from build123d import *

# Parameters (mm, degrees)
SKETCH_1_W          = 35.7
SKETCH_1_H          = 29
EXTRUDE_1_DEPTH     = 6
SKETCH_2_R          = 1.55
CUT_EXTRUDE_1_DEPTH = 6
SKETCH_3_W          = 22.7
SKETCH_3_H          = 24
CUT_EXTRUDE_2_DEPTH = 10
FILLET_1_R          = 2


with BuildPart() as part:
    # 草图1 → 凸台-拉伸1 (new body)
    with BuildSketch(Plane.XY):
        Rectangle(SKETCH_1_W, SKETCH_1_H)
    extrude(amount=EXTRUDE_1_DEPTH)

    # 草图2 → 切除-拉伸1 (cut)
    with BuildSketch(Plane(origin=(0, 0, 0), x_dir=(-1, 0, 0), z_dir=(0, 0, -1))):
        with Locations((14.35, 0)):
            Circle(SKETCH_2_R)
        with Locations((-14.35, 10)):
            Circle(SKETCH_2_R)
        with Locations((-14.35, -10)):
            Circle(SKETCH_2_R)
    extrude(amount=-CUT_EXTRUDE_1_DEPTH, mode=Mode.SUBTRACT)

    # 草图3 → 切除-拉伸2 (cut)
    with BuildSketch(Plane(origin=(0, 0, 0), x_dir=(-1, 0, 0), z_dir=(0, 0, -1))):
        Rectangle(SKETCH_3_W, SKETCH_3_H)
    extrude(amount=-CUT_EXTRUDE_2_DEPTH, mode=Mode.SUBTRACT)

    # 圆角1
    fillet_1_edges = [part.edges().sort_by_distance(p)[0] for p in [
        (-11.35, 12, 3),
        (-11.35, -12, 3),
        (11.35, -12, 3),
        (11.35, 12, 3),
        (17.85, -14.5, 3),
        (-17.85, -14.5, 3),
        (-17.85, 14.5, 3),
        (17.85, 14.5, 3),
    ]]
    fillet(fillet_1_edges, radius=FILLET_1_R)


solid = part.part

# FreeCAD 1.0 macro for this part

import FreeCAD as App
import Part
import Sketcher
from FreeCAD import Vector


def edges_at(feature, points):
    """Names of the edges that pass closest to the given points."""
    edges = feature.Shape.Edges
    near = lambda p: min(range(len(edges)), key=lambda i: edges[i].distToShape(Part.Vertex(*p))[0])
    return sorted({f"Edge{near(p) + 1}" for p in points})

doc = App.newDocument("Part")
params = doc.addObject("Spreadsheet::Sheet", "Params")
for row, (alias, value) in enumerate([
    ("sketch1_height", "29 mm"),
    ("sketch1_width", "35.7 mm"),
    ("pad1_length", "6 mm"),
    ("sketch2_diameter", "3.1 mm"),
    ("pocket1_length", "6 mm"),
    ("sketch3_height", "24 mm"),
    ("sketch3_width", "22.7 mm"),
    ("pocket2_length", "10 mm"),
    ("fillet_radius", "2 mm"),
], start=1):
    params.set(f"A{row}", alias)
    params.set(f"B{row}", "=" + value)
    params.setAlias(f"B{row}", alias)

body = doc.addObject("PartDesign::Body", "Body")

# Sketch on XY plane
sketch1 = body.newObject("Sketcher::SketchObject", "Sketch")
sketch1.AttachmentSupport = (doc.getObject("XY_Plane"), [""])
sketch1.MapMode = "FlatFace"
sketch1.addGeometry([
    Part.LineSegment(Vector(-18, 14, 0), Vector(-18, -14, 0)),
    Part.LineSegment(Vector(-18, -14, 0), Vector(18, -14, 0)),
    Part.LineSegment(Vector(18, -14, 0), Vector(18, 14, 0)),
    Part.LineSegment(Vector(18, 14, 0), Vector(-18, 14, 0)),
], False)
sketch1.addConstraint([
    Sketcher.Constraint("Coincident", 0, 2, 1, 1),
    Sketcher.Constraint("Coincident", 1, 2, 2, 1),
    Sketcher.Constraint("Coincident", 2, 2, 3, 1),
    Sketcher.Constraint("Coincident", 3, 2, 0, 1),
    Sketcher.Constraint("Vertical", 0),
    Sketcher.Constraint("Horizontal", 1),
    Sketcher.Constraint("Vertical", 2),
    Sketcher.Constraint("Horizontal", 3),
    Sketcher.Constraint("Symmetric", 0, 2, 2, 2, -1, 1),
    Sketcher.Constraint("DistanceY", 0, 2, 0, 1, 29.0),
    Sketcher.Constraint("DistanceX", 1, 1, 1, 2, 35.7),
])
sketch1.setExpression("Constraints[9]", "Params.sketch1_height")
sketch1.setExpression("Constraints[10]", "Params.sketch1_width")
pad1 = body.newObject("PartDesign::Pad", "Pad")
pad1.Profile = sketch1
pad1.setExpression("Length", "Params.pad1_length")

# Sketch on XY plane
sketch2 = body.newObject("Sketcher::SketchObject", "Sketch001")
sketch2.AttachmentSupport = (doc.getObject("XY_Plane"), [""])
sketch2.MapMode = "FlatFace"
sketch2.addGeometry([
    Part.Circle(Vector(-14.3, 0, 0), Vector(0, 0, 1), 1.6),
    Part.Circle(Vector(14.3, 10, 0), Vector(0, 0, 1), 1.6),
    Part.Circle(Vector(14.3, -10, 0), Vector(0, 0, 1), 1.6),
], False)
sketch2.addConstraint([
    Sketcher.Constraint("Equal", 0, 1),
    Sketcher.Constraint("Equal", 1, 2),
    Sketcher.Constraint("Symmetric", 1, 3, 2, 3, -1),
    Sketcher.Constraint("PointOnObject", 0, 3, -1),
    Sketcher.Constraint("Diameter", 0, 3.1),
    Sketcher.Constraint("DistanceY", -1, 1, 1, 3, 10.0),
    Sketcher.Constraint("DistanceX", 0, 3, 1, 3, 28.7),
    Sketcher.Constraint("DistanceX", 0, 3, -1, 1, 14.35),
])
sketch2.setExpression("Constraints[4]", "Params.sketch2_diameter")
pocket1 = body.newObject("PartDesign::Pocket", "Pocket")
pocket1.Profile = sketch2
pocket1.setExpression("Length", "Params.pocket1_length")
pocket1.Reversed = True

# Sketch on XY plane
sketch3 = body.newObject("Sketcher::SketchObject", "Sketch002")
sketch3.AttachmentSupport = (doc.getObject("XY_Plane"), [""])
sketch3.MapMode = "FlatFace"
sketch3.addGeometry([
    Part.LineSegment(Vector(11, 12, 0), Vector(11, -12, 0)),
    Part.LineSegment(Vector(11, -12, 0), Vector(-11, -12, 0)),
    Part.LineSegment(Vector(-11, -12, 0), Vector(-11, 12, 0)),
    Part.LineSegment(Vector(-11, 12, 0), Vector(11, 12, 0)),
], False)
sketch3.addConstraint([
    Sketcher.Constraint("Coincident", 0, 2, 1, 1),
    Sketcher.Constraint("Coincident", 1, 2, 2, 1),
    Sketcher.Constraint("Coincident", 2, 2, 3, 1),
    Sketcher.Constraint("Coincident", 3, 2, 0, 1),
    Sketcher.Constraint("Vertical", 0),
    Sketcher.Constraint("Horizontal", 1),
    Sketcher.Constraint("Vertical", 2),
    Sketcher.Constraint("Horizontal", 3),
    Sketcher.Constraint("Symmetric", 0, 2, 2, 2, -1, 1),
    Sketcher.Constraint("DistanceY", 0, 2, 0, 1, 24.0),
    Sketcher.Constraint("DistanceX", 1, 2, 1, 1, 22.7),
])
sketch3.setExpression("Constraints[9]", "Params.sketch3_height")
sketch3.setExpression("Constraints[10]", "Params.sketch3_width")
pocket2 = body.newObject("PartDesign::Pocket", "Pocket001")
pocket2.Profile = sketch3
pocket2.setExpression("Length", "Params.pocket2_length")
pocket2.Reversed = True
doc.recompute()

fillet = body.newObject("PartDesign::Fillet", "Fillet")
fillet.Base = (pocket2, edges_at(pocket2, [
    (-11.35, 12, 3),
    (-11.35, -12, 3),
    (11.35, -12, 3),
    (11.35, 12, 3),
    (17.85, -14.5, 3),
    (-17.85, -14.5, 3),
    (-17.85, 14.5, 3),
    (17.85, 14.5, 3),
]))
fillet.setExpression("Radius", "Params.fillet_radius")

doc.recompute()
